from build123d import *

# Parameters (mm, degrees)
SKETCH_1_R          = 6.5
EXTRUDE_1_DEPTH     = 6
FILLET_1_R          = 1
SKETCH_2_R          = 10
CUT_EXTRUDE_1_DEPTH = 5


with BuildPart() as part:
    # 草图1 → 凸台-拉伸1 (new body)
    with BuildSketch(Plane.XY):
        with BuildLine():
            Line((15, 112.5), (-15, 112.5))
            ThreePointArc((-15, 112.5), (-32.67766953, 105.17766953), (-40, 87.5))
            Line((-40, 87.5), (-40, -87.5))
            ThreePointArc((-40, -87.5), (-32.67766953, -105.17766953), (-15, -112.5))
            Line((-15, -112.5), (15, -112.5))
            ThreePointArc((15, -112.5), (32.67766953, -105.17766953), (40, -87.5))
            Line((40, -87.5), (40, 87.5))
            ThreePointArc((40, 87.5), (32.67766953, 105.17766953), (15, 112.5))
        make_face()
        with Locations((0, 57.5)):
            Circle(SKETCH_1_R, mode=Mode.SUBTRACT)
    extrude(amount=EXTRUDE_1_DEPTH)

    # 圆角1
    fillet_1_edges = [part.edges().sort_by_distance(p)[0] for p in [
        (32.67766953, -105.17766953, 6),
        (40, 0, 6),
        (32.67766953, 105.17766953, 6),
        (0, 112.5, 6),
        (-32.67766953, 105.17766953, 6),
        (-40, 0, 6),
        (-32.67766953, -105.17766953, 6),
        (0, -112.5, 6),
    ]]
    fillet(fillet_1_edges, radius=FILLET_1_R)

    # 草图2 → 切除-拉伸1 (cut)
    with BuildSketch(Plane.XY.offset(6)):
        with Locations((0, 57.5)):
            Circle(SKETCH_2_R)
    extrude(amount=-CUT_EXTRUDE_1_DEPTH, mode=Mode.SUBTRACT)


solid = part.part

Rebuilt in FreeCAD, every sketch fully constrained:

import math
import FreeCAD as App
import Part
import Sketcher


def edges_at(feature, points):
    """Names of the edges that pass closest to the given points."""
    edges = feature.Shape.Edges
    near = lambda p: min(range(len(edges)), key=lambda i: edges[i].distToShape(Part.Vertex(*p))[0])
    return sorted({f"Edge{near(p) + 1}" for p in points})

doc = App.newDocument("Part")
params = doc.addObject("Spreadsheet::Sheet", "Params")
for row, (alias, value) in enumerate([
    ("sketch1_diameter", "13 mm"),
    ("sketch1_radius", "25 mm"),
    ("sketch1_width", "30 mm"),
    ("sketch1_height", "175 mm"),
    ("pad1_length", "6 mm"),
    ("fillet_radius", "1 mm"),
    ("sketch2_diameter", "20 mm"),
    ("pocket1_length", "5 mm"),
], start=1):
    params.set(f"A{row}", alias)
    params.set(f"B{row}", "=" + value)
    params.setAlias(f"B{row}", alias)

body = doc.addObject("PartDesign::Body", "Body")

sketch1 = body.newObject("Sketcher::SketchObject", "Sketch")
sketch1.AttachmentSupport = (doc.getObject("XY_Plane"), [""])
sketch1.MapMode = "FlatFace"
sketch1.addGeometry([
    Part.LineSegment(App.Vector(15, 112, 0), App.Vector(-15, 112, 0)),
    Part.ArcOfCircle(Part.Circle(App.Vector(-15, 88, 0), App.Vector(0, 0, 1), 25), math.radians(90), math.radians(180)),
    Part.LineSegment(App.Vector(-40, 88, 0), App.Vector(-40, -88, 0)),
    Part.ArcOfCircle(Part.Circle(App.Vector(-15, -88, 0), App.Vector(0, 0, 1), 25), math.radians(180), math.radians(270)),
    Part.LineSegment(App.Vector(-15, -112, 0), App.Vector(15, -112, 0)),
    Part.ArcOfCircle(Part.Circle(App.Vector(15, -88, 0), App.Vector(0, 0, 1), 25), math.radians(-90), math.radians(0)),
    Part.LineSegment(App.Vector(40, -88, 0), App.Vector(40, 88, 0)),
    Part.ArcOfCircle(Part.Circle(App.Vector(15, 88, 0), App.Vector(0, 0, 1), 25), math.radians(0), math.radians(90)),
    Part.Circle(App.Vector(0, 58, 0), App.Vector(0, 0, 1), 6),
], False)
sketch1.addConstraint([
    Sketcher.Constraint("Tangent", 0, 2, 1, 1),
    Sketcher.Constraint("Tangent", 1, 2, 2, 1),
    Sketcher.Constraint("Tangent", 2, 2, 3, 1),
    Sketcher.Constraint("Tangent", 3, 2, 4, 1),
    Sketcher.Constraint("Tangent", 4, 2, 5, 1),
    Sketcher.Constraint("Tangent", 5, 2, 6, 1),
    Sketcher.Constraint("Tangent", 6, 2, 7, 1),
    Sketcher.Constraint("Tangent", 7, 2, 0, 1),
    Sketcher.Constraint("Horizontal", 0),
    Sketcher.Constraint("Vertical", 2),
    Sketcher.Constraint("Horizontal", 4),
    Sketcher.Constraint("Vertical", 6),
    Sketcher.Constraint("Equal", 1, 3),
    Sketcher.Constraint("Equal", 3, 5),
    Sketcher.Constraint("Equal", 5, 7),
    Sketcher.Constraint("Symmetric", 1, 3, 5, 3, -1, 1),
    Sketcher.Constraint("PointOnObject", 8, 3, -2),
    Sketcher.Constraint("Diameter", 8, 13.0),
    Sketcher.Constraint("Radius", 1, 25.0),
    Sketcher.Constraint("DistanceX", 0, 2, 0, 1, 30.0),
    Sketcher.Constraint("DistanceY", 2, 2, 2, 1, 175.0),
    Sketcher.Constraint("DistanceY", 8, 3, 1, 3, 30.0),
])
sketch1.setExpression("Constraints[17]", "Params.sketch1_diameter")
sketch1.setExpression("Constraints[18]", "Params.sketch1_radius")
sketch1.setExpression("Constraints[19]", "Params.sketch1_width")
sketch1.setExpression("Constraints[20]", "Params.sketch1_height")
pad1 = body.newObject("PartDesign::Pad", "Pad")
pad1.Profile = sketch1
pad1.setExpression("Length", "Params.pad1_length")
doc.recompute()

fillet = body.newObject("PartDesign::Fillet", "Fillet")
fillet.Base = (pad1, edges_at(pad1, [
    (32.678, -105.178, 6),
    (40, 0, 6),
    (32.678, 105.178, 6),
    (0, 112.5, 6),
    (-32.678, 105.178, 6),
    (-40, 0, 6),
    (-32.678, -105.178, 6),
    (0, -112.5, 6),
]))
fillet.setExpression("Radius", "Params.fillet_radius")

sketch2 = body.newObject("Sketcher::SketchObject", "Sketch001")
sketch2.AttachmentSupport = (doc.getObject("XY_Plane"), [""])
sketch2.MapMode = "FlatFace"
sketch2.AttachmentOffset = App.Placement(App.Vector(0, 0, 6), App.Rotation())
sketch2.addGeometry(Part.Circle(App.Vector(0, 58, 0), App.Vector(0, 0, 1), 10), False)
sketch2.addConstraint([
    Sketcher.Constraint("PointOnObject", 0, 3, -2),
    Sketcher.Constraint("Diameter", 0, 20.0),
    Sketcher.Constraint("DistanceY", -1, 1, 0, 3, 57.5),
])
sketch2.setExpression("Constraints[1]", "Params.sketch2_diameter")
pocket1 = body.newObject("PartDesign::Pocket", "Pocket")
pocket1.Profile = sketch2
pocket1.setExpression("Length", "Params.pocket1_length")

doc.recompute()
